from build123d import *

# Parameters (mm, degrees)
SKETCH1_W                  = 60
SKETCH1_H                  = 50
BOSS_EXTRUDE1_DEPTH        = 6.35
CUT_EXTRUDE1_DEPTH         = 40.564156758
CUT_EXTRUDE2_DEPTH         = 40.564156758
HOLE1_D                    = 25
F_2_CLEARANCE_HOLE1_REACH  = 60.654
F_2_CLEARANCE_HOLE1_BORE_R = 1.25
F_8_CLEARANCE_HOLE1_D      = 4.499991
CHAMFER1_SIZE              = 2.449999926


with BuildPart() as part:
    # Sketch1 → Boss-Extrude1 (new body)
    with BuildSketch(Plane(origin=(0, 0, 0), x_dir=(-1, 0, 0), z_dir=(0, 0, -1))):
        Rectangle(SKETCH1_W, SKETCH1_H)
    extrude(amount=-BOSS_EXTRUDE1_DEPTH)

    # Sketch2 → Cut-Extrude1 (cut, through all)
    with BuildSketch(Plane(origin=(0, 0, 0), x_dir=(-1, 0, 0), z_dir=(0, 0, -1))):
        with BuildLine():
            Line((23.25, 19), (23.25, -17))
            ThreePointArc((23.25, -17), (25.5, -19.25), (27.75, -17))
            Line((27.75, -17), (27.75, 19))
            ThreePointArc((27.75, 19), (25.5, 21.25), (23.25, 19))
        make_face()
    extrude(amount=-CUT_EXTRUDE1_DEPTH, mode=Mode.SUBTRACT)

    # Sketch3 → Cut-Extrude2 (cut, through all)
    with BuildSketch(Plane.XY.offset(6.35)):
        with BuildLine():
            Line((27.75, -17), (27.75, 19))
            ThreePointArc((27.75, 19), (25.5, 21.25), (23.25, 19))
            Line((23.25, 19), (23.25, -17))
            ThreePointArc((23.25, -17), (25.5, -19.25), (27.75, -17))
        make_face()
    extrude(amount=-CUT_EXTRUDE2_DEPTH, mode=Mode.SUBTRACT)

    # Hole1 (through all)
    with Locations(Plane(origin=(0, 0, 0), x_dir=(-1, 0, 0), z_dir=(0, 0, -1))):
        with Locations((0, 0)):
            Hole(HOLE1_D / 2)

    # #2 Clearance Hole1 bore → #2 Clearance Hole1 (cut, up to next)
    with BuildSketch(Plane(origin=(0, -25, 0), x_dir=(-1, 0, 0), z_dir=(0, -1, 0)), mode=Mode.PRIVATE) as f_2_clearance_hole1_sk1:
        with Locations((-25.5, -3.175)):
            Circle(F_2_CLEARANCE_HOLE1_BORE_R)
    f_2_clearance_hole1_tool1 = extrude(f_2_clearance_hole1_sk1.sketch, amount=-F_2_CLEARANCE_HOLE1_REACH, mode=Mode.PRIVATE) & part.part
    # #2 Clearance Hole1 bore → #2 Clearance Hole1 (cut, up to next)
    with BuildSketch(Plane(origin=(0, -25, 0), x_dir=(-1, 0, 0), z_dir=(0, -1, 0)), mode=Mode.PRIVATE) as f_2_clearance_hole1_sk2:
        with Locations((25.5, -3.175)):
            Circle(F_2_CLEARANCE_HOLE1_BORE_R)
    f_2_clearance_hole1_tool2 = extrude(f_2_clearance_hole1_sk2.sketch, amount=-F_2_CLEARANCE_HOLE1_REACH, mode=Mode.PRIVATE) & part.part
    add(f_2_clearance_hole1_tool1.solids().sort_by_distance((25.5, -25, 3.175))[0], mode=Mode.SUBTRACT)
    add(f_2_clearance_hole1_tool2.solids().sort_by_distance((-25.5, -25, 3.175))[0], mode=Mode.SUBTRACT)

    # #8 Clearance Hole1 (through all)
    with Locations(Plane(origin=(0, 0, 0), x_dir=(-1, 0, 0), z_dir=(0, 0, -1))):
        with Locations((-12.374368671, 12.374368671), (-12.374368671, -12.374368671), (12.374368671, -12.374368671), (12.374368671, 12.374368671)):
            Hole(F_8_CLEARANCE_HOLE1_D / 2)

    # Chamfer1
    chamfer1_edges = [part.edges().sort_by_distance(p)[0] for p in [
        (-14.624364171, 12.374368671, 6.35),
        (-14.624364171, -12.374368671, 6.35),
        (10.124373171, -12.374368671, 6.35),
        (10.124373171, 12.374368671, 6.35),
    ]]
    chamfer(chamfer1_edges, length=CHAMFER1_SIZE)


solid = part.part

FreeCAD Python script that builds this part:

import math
import FreeCAD as App
import Part
import Sketcher

V = App.Vector


def edges_at(feature, points):
    """Names of the edges that pass closest to the given points."""
    edges = feature.Shape.Edges
    near = lambda p: min(range(len(edges)), key=lambda i: edges[i].distToShape(Part.Vertex(*p))[0])
    return sorted({f"Edge{near(p) + 1}" for p in points})

doc = App.newDocument("Part")
body = doc.addObject("PartDesign::Body", "Body")

sketch1 = body.newObject("Sketcher::SketchObject", "Sketch")
sketch1.AttachmentSupport = (doc.getObject("XY_Plane"), [""])
sketch1.MapMode = "FlatFace"
sketch1.addGeometry([
    Part.LineSegment(V(30, 25, 0), V(30, -25, 0)),
    Part.LineSegment(V(30, -25, 0), V(-30, -25, 0)),
    Part.LineSegment(V(-30, -25, 0), V(-30, 25, 0)),
    Part.LineSegment(V(-30, 25, 0), V(30, 25, 0)),
], False)
sketch1.addConstraint([
    Sketcher.Constraint("Coincident", 0, 2, 1, 1),
    Sketcher.Constraint("Coincident", 1, 2, 2, 1),
    Sketcher.Constraint("Coincident", 2, 2, 3, 1),
    Sketcher.Constraint("Coincident", 3, 2, 0, 1),
    Sketcher.Constraint("Vertical", 0),
    Sketcher.Constraint("Horizontal", 1),
    Sketcher.Constraint("Vertical", 2),
    Sketcher.Constraint("Horizontal", 3),
    Sketcher.Constraint("Symmetric", 0, 2, 2, 2, -1, 1),
    Sketcher.Constraint("DistanceX", 1, 2, 1, 1, 60.0),
    Sketcher.Constraint("DistanceY", 0, 2, 0, 1, 50.0),
])
pad1 = body.newObject("PartDesign::Pad", "Pad")
pad1.Profile = sketch1
pad1.Length = 6.35

sketch2 = body.newObject("Sketcher::SketchObject", "Sketch001")
sketch2.AttachmentSupport = (doc.getObject("XY_Plane"), [""])
sketch2.MapMode = "FlatFace"
sketch2.addGeometry([
    Part.LineSegment(V(-23.2, 19, 0), V(-23.2, -17, 0)),
    Part.ArcOfCircle(Part.Circle(V(-25.5, -17, 0), V(0, 0, 1), 2.2), math.radians(180), math.radians(360)),
    Part.LineSegment(V(-27.8, -17, 0), V(-27.8, 19, 0)),
    Part.ArcOfCircle(Part.Circle(V(-25.5, 19, 0), V(0, 0, 1), 2.2), math.radians(0), math.radians(180)),
], False)
sketch2.addConstraint([
    Sketcher.Constraint("Tangent", 0, 2, 1, 2),
    Sketcher.Constraint("Tangent", 1, 1, 2, 1),
    Sketcher.Constraint("Tangent", 2, 2, 3, 2),
    Sketcher.Constraint("Tangent", 3, 1, 0, 1),
    Sketcher.Constraint("Vertical", 0),
    Sketcher.Constraint("Vertical", 2),
    Sketcher.Constraint("DistanceY", 0, 2, 0, 1, 36.0),
    Sketcher.Constraint("Radius", 1, 2.25),
    Sketcher.Constraint("DistanceY", 1, 3, -1, 1, 17.0),
    Sketcher.Constraint("DistanceX", 1, 3, -1, 1, 25.5),
])
pocket1 = body.newObject("PartDesign::Pocket", "Pocket")
pocket1.Profile = sketch2
pocket1.Type = "ThroughAll"
pocket1.Reversed = True

sketch3 = body.newObject("Sketcher::SketchObject", "Sketch002")
sketch3.AttachmentSupport = (doc.getObject("XY_Plane"), [""])
sketch3.MapMode = "FlatFace"
sketch3.AttachmentOffset = App.Placement(V(0, 0, 6.35), App.Rotation())
sketch3.addGeometry([
    Part.LineSegment(V(27.8, -17, 0), V(27.8, 19, 0)),
    Part.ArcOfCircle(Part.Circle(V(25.5, 19, 0), V(0, 0, 1), 2.2), math.radians(0), math.radians(180)),
    Part.LineSegment(V(23.2, 19, 0), V(23.2, -17, 0)),
    Part.ArcOfCircle(Part.Circle(V(25.5, -17, 0), V(0, 0, 1), 2.2), math.radians(180), math.radians(360)),
], False)
sketch3.addConstraint([
    Sketcher.Constraint("Tangent", 0, 2, 1, 1),
    Sketcher.Constraint("Tangent", 1, 2, 2, 1),
    Sketcher.Constraint("Tangent", 2, 2, 3, 1),
    Sketcher.Constraint("Tangent", 3, 2, 0, 1),
    Sketcher.Constraint("Vertical", 0),
    Sketcher.Constraint("Vertical", 2),
    Sketcher.Constraint("DistanceY", 0, 1, 0, 2, 36.0),
    Sketcher.Constraint("Radius", 1, 2.25),
    Sketcher.Constraint("DistanceY", -1, 1, 1, 3, 19.0),
    Sketcher.Constraint("DistanceX", -1, 1, 1, 3, 25.5),
])
pocket2 = body.newObject("PartDesign::Pocket", "Pocket001")
pocket2.Profile = sketch3
pocket2.Type = "ThroughAll"

sketch4 = body.newObject("Sketcher::SketchObject", "Sketch003")
sketch4.AttachmentSupport = (doc.getObject("XY_Plane"), [""])
sketch4.MapMode = "FlatFace"
sketch4.addGeometry(Part.Circle(V(0, 0, 0), V(0, 0, 1), 12), False)
sketch4.addConstraint([
    Sketcher.Constraint("Coincident", 0, 3, -1, 1),
    Sketcher.Constraint("Diameter", 0, 25.0),
])
doc.recompute()
hole = body.newObject("PartDesign::Hole", "Hole")
hole.Profile = sketch4
hole.ThreadType = "None"
hole.Diameter = 25
hole.DepthType = "ThroughAll"
hole.Reversed = True

sketch5 = body.newObject("Sketcher::SketchObject", "Sketch004")
sketch5.AttachmentSupport = (doc.getObject("XZ_Plane"), [""])
sketch5.MapMode = "FlatFace"
sketch5.AttachmentOffset = App.Placement(V(0, 0, 25), App.Rotation())
sketch5.addGeometry(Part.Circle(V(25.5, 3.2, 0), V(0, 0, 1), 1.2), False)
sketch5.addConstraint([
    Sketcher.Constraint("Diameter", 0, 2.5),
    Sketcher.Constraint("DistanceX", -1, 1, 0, 3, 25.5),
    Sketcher.Constraint("DistanceY", -1, 1, 0, 3, 3.175),
])
pocket3 = body.newObject("PartDesign::Pocket", "Pocket002")
pocket3.Profile = sketch5
pocket3.Type = "UpToFirst"

sketch6 = body.newObject("Sketcher::SketchObject", "Sketch005")
sketch6.AttachmentSupport = (doc.getObject("XZ_Plane"), [""])
sketch6.MapMode = "FlatFace"
sketch6.AttachmentOffset = App.Placement(V(0, 0, 25), App.Rotation())
sketch6.addGeometry(Part.Circle(V(-25.5, 3.2, 0), V(0, 0, 1), 1.2), False)
sketch6.addConstraint([
    Sketcher.Constraint("Diameter", 0, 2.5),
    Sketcher.Constraint("DistanceX", 0, 3, -1, 1, 25.5),
    Sketcher.Constraint("DistanceY", -1, 1, 0, 3, 3.175),
])
pocket4 = body.newObject("PartDesign::Pocket", "Pocket003")
pocket4.Profile = sketch6
pocket4.Type = "UpToFirst"

sketch7 = body.newObject("Sketcher::SketchObject", "Sketch006")
sketch7.AttachmentSupport = (doc.getObject("XY_Plane"), [""])
sketch7.MapMode = "FlatFace"
sketch7.addGeometry([
    Part.Circle(V(12.4, 12.4, 0), V(0, 0, 1), 2.2),
    Part.Circle(V(12.4, -12.4, 0), V(0, 0, 1), 2.2),
    Part.Circle(V(-12.4, -12.4, 0), V(0, 0, 1), 2.2),
    Part.Circle(V(-12.4, 12.4, 0), V(0, 0, 1), 2.2),
], False)
sketch7.addConstraint([
    Sketcher.Constraint("Equal", 0, 1),
    Sketcher.Constraint("Equal", 1, 2),
    Sketcher.Constraint("Equal", 2, 3),
    Sketcher.Constraint("Symmetric", 0, 3, 2, 3, -1, 1),
    Sketcher.Constraint("Symmetric", 1, 3, 3, 3, -1, 1),
    Sketcher.Constraint("Symmetric", 1, 3, 2, 3, -2),
    Sketcher.Constraint("Diameter", 0, 4.499991),
    Sketcher.Constraint("DistanceX", -1, 1, 0, 3, 12.374369),
    Sketcher.Constraint("DistanceY", -1, 1, 0, 3, 12.374369),
])
doc.recompute()
hole2 = body.newObject("PartDesign::Hole", "Hole001")
hole2.Profile = sketch7
hole2.ThreadType = "None"
hole2.Diameter = 4.499991
hole2.DepthType = "ThroughAll"
hole2.Reversed = True
doc.recompute()

chamfer = body.newObject("PartDesign::Chamfer", "Chamfer")
chamfer.Base = (hole2, edges_at(hole2, [
    (-14.624, 12.374, 6.35),
    (-14.624, -12.374, 6.35),
    (10.124, -12.374, 6.35),
    (10.124, 12.374, 6.35),
]))
chamfer.Size = 2.45

doc.recompute()
